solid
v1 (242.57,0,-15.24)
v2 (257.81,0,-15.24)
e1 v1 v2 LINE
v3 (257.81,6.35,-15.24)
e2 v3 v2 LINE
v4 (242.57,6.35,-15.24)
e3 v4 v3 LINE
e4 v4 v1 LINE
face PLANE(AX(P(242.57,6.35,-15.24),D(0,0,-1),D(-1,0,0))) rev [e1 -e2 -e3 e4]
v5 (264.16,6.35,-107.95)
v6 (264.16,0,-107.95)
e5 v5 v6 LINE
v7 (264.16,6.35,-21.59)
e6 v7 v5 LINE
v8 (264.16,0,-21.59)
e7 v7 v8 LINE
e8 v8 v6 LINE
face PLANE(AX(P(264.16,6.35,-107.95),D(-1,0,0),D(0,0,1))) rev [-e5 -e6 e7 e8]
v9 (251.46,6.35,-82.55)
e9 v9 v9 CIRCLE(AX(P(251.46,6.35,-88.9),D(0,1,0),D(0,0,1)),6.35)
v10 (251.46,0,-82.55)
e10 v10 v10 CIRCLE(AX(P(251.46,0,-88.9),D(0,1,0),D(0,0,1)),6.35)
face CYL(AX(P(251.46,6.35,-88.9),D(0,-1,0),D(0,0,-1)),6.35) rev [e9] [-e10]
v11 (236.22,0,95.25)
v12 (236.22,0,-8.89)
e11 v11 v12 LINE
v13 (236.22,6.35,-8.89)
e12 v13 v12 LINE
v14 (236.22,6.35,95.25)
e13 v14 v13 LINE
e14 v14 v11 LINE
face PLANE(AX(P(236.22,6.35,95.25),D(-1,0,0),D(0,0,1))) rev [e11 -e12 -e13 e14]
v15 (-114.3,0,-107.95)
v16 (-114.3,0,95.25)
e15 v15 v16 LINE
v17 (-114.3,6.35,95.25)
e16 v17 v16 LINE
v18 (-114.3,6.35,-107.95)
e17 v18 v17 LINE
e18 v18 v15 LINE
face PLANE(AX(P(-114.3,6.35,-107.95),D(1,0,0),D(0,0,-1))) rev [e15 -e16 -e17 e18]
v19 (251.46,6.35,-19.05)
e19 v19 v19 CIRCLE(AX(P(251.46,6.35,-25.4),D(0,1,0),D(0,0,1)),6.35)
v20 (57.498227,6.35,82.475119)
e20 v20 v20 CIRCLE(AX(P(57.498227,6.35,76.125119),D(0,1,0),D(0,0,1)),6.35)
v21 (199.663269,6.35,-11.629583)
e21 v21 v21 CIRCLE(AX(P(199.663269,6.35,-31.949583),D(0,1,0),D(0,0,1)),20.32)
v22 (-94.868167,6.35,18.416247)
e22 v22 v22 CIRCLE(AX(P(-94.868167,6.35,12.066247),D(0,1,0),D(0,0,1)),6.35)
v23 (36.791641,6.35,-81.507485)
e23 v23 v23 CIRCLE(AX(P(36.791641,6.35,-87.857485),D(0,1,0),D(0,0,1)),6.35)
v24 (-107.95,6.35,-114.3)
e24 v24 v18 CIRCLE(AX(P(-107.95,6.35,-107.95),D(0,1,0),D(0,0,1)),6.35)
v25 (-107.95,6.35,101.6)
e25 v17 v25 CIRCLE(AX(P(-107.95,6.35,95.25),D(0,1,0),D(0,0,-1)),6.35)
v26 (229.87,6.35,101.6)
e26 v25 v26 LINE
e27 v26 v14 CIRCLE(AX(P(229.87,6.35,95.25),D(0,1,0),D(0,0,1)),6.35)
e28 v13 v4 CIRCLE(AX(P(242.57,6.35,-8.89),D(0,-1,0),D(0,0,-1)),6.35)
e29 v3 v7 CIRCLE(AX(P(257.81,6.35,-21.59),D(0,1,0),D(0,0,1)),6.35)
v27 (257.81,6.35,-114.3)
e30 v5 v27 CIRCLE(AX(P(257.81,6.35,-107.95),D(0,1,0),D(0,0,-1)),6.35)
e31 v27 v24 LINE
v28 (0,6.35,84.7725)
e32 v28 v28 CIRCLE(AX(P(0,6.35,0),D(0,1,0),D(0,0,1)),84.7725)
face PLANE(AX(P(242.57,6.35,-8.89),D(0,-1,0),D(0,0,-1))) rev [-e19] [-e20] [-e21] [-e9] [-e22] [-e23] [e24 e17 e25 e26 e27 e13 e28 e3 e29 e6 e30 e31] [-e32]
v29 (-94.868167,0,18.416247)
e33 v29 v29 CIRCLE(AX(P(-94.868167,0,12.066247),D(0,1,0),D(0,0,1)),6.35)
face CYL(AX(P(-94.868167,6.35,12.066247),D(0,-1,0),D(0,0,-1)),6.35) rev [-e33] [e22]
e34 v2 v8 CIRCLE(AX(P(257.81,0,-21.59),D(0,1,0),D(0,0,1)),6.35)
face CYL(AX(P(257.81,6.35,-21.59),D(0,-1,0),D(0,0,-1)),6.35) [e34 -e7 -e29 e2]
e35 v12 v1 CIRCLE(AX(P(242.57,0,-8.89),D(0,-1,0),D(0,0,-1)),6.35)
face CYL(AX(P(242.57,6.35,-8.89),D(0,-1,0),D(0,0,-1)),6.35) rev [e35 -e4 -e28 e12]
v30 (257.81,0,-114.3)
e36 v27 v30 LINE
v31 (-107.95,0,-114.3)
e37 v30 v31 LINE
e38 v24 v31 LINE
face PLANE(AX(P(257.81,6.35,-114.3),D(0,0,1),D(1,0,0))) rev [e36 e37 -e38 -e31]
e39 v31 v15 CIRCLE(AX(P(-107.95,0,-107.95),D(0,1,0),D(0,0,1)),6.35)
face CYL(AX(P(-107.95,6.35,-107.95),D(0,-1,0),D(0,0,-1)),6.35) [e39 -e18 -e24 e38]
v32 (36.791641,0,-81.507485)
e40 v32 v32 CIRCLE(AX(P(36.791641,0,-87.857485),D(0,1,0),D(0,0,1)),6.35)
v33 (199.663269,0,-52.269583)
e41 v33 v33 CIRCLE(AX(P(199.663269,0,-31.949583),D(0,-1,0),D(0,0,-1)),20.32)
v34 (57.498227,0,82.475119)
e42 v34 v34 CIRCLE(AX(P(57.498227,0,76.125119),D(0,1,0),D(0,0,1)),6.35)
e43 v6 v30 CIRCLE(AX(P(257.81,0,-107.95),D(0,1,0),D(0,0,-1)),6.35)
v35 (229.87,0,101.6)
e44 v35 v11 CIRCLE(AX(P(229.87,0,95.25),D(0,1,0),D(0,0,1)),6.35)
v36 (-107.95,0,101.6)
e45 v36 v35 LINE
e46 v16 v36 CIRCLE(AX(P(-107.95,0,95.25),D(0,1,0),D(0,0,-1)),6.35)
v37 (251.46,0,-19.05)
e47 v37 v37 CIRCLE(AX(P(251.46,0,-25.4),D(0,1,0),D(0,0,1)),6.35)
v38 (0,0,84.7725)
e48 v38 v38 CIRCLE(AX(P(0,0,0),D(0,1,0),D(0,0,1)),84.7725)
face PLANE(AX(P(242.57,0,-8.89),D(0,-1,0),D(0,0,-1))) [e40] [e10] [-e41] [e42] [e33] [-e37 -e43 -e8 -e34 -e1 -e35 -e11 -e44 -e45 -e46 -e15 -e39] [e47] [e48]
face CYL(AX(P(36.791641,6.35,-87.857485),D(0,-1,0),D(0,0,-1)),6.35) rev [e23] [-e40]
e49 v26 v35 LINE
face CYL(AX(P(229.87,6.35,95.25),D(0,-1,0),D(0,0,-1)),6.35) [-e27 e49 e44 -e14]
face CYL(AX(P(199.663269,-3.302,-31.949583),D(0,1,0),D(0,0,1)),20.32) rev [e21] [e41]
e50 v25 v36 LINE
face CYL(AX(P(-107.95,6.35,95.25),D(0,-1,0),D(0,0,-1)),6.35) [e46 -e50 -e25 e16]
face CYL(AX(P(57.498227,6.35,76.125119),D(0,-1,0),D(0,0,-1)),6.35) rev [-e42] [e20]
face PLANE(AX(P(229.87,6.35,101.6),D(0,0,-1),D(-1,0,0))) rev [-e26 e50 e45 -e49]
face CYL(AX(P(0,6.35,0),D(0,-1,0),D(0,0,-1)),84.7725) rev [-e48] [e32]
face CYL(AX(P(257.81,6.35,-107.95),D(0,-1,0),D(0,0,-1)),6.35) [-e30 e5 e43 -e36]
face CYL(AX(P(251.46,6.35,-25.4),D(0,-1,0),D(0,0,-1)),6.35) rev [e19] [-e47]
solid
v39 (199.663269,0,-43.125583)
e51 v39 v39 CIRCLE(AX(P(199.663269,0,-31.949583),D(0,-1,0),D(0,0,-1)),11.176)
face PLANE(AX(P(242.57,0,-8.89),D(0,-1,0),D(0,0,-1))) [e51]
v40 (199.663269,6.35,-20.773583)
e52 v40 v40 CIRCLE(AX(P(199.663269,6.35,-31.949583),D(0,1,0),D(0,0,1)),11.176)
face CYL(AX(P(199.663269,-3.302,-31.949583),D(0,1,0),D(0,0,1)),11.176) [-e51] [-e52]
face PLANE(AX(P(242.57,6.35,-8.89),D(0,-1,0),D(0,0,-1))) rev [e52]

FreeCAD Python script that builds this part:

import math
import FreeCAD as App
import Part
import Sketcher
Q = App.Units.Quantity

doc = App.newDocument("Part")
body = doc.addObject("PartDesign::Body", "Body")
body.AllowCompound = True

# Sketch on XZ plane
sketch1 = body.newObject("Sketcher::SketchObject", "Sketch")
sketch1.AttachmentSupport = (doc.getObject("XZ_Plane"), [""])
sketch1.MapMode = "FlatFace"
sketch1.addGeometry([
    Part.LineSegment(App.Vector(258, -114, 0), App.Vector(-108, -114, 0)),  # 0
    Part.ArcOfCircle(Part.Circle(App.Vector(-108, -108, 0), App.Vector(0, 0, 1), 6), math.radians(180), math.radians(270)),  # 1
    Part.LineSegment(App.Vector(-114, -108, 0), App.Vector(-114, 95, 0)),  # 2
    Part.ArcOfCircle(Part.Circle(App.Vector(-108, 95, 0), App.Vector(0, 0, 1), 6), math.radians(90), math.radians(180)),  # 3
    Part.LineSegment(App.Vector(-108, 102, 0), App.Vector(230, 102, 0)),  # 4
    Part.ArcOfCircle(Part.Circle(App.Vector(230, 95, 0), App.Vector(0, 0, 1), 6), math.radians(0), math.radians(90)),  # 5
    Part.LineSegment(App.Vector(236, 95, 0), App.Vector(236, -9, 0)),  # 6
    Part.ArcOfCircle(Part.Circle(App.Vector(243, -9, 0), App.Vector(0, 0, 1), 6), math.radians(180), math.radians(270)),  # 7
    Part.LineSegment(App.Vector(243, -15, 0), App.Vector(258, -15, 0)),  # 8
    Part.ArcOfCircle(Part.Circle(App.Vector(258, -22, 0), App.Vector(0, 0, 1), 6), math.radians(0), math.radians(90)),  # 9
    Part.LineSegment(App.Vector(264, -22, 0), App.Vector(264, -108, 0)),  # 10
    Part.ArcOfCircle(Part.Circle(App.Vector(258, -108, 0), App.Vector(0, 0, 1), 6), math.radians(-90), math.radians(0)),  # 11
    Part.Circle(App.Vector(57, 76, 0), App.Vector(0, 0, 1), 6),  # 12
    Part.Circle(App.Vector(-95, 12, 0), App.Vector(0, 0, 1), 6),  # 13
    Part.Circle(App.Vector(0, 0, 0), App.Vector(0, 0, 1), 85),  # 14
    Part.Circle(App.Vector(37, -88, 0), App.Vector(0, 0, 1), 6),  # 15
    Part.Circle(App.Vector(251, -25, 0), App.Vector(0, 0, 1), 6),  # 16
    Part.Circle(App.Vector(251, -89, 0), App.Vector(0, 0, 1), 6),  # 17
], False)
sketch1.addConstraint([
    Sketcher.Constraint("Tangent", 0, 2, 1, 2),
    Sketcher.Constraint("Tangent", 1, 1, 2, 1),
    Sketcher.Constraint("Tangent", 2, 2, 3, 2),
    Sketcher.Constraint("Tangent", 3, 1, 4, 1),
    Sketcher.Constraint("Tangent", 4, 2, 5, 2),
    Sketcher.Constraint("Tangent", 5, 1, 6, 1),
    Sketcher.Constraint("Tangent", 6, 2, 7, 1),
    Sketcher.Constraint("Tangent", 7, 2, 8, 1),
    Sketcher.Constraint("Tangent", 8, 2, 9, 2),
    Sketcher.Constraint("Tangent", 9, 1, 10, 1),
    Sketcher.Constraint("Tangent", 10, 2, 11, 2),
    Sketcher.Constraint("Tangent", 11, 1, 0, 1),
    Sketcher.Constraint("Horizontal", 0),
    Sketcher.Constraint("Vertical", 2),
    Sketcher.Constraint("Horizontal", 4),
    Sketcher.Constraint("Vertical", 6),
    Sketcher.Constraint("Horizontal", 8),
    Sketcher.Constraint("Vertical", 10),
    Sketcher.Constraint("Coincident", 14, 3, -1, 1),
    Sketcher.Constraint("Equal", 1, 3),
    Sketcher.Constraint("Equal", 3, 5),
    Sketcher.Constraint("Equal", 5, 7),
    Sketcher.Constraint("Equal", 7, 9),
    Sketcher.Constraint("Equal", 9, 11),
    Sketcher.Constraint("Equal", 11, 12),
    Sketcher.Constraint("Equal", 12, 13),
    Sketcher.Constraint("Equal", 13, 15),
    Sketcher.Constraint("Equal", 15, 16),
    Sketcher.Constraint("Equal", 16, 17),
    Sketcher.Constraint("Vertical", 16, 3, 17, 3),
    Sketcher.Constraint("Diameter", 12, Q("0.5 in")),
    Sketcher.Constraint("DistanceY", 2, 1, 2, 2, Q("8 in")),
    Sketcher.Constraint("Diameter", 14, Q("6.675 in")),
    Sketcher.Constraint("DistanceX", 0, 2, 0, 1, Q("14.4 in")),
    Sketcher.Constraint("DistanceX", 4, 1, 4, 2, Q("13.3 in")),
    Sketcher.Constraint("DistanceY", 6, 2, 6, 1, Q("4.1 in")),
    Sketcher.Constraint("DistanceY", 16, 3, -1, 1, Q("1 in")),
    Sketcher.Constraint("DistanceY", -1, 1, 3, 1, Q("4 in")),
    Sketcher.Constraint("DistanceY", 11, 1, 17, 3, Q("1 in")),
    Sketcher.Constraint("DistanceX", -1, 1, 16, 3, Q("9.9 in")),
    Sketcher.Constraint("DistanceX", 1, 1, -1, 1, Q("4.5 in")),
    Sketcher.Constraint("DistanceY", -1, 1, 12, 3, Q("76.125119 mm")),
    Sketcher.Constraint("DistanceX", -1, 1, 15, 3, Q("36.791641 mm")),
    Sketcher.Constraint("DistanceX", -1, 1, 12, 3, Q("57.498227 mm")),
    Sketcher.Constraint("DistanceX", 13, 3, -1, 1, Q("94.868167 mm")),
    Sketcher.Constraint("DistanceY", -1, 1, 13, 3, Q("12.066247 mm")),
    Sketcher.Constraint("DistanceY", 15, 3, -1, 1, Q("87.857485 mm")),
])
pad1 = body.newObject("PartDesign::Pad", "Pad")
pad1.Profile = sketch1
pad1.Length = Q("0.25 in")
pad1.Reversed = True

# Sketch on XZ plane
sketch2 = body.newObject("Sketcher::SketchObject", "Sketch001")
sketch2.AttachmentSupport = (doc.getObject("XZ_Plane"), [""])
sketch2.MapMode = "FlatFace"
sketch2.AttachmentOffset = App.Placement(App.Vector(0, 0, -0.25 * 25.4), App.Rotation())
sketch2.addGeometry([
    Part.Circle(App.Vector(200, -32, 0), App.Vector(0, 0, 1), 20),
    Part.Circle(App.Vector(200, -32, 0), App.Vector(0, 0, 1), 11),
], False)
sketch2.addConstraint([
    Sketcher.Constraint("Coincident", 1, 3, 0, 3),
    Sketcher.Constraint("Diameter", 0, Q("1.6 in")),
    Sketcher.Constraint("Diameter", 1, Q("0.88 in")),
    Sketcher.Constraint("DistanceX", -1, 1, 0, 3, Q("199.663269 mm")),
    Sketcher.Constraint("DistanceY", 0, 3, -1, 1, Q("31.949583 mm")),
])
pocket1 = body.newObject("PartDesign::Pocket", "Pocket")
pocket1.Profile = sketch2
pocket1.Length = Q("0.38 in")
pocket1.Reversed = True

doc.recompute()
